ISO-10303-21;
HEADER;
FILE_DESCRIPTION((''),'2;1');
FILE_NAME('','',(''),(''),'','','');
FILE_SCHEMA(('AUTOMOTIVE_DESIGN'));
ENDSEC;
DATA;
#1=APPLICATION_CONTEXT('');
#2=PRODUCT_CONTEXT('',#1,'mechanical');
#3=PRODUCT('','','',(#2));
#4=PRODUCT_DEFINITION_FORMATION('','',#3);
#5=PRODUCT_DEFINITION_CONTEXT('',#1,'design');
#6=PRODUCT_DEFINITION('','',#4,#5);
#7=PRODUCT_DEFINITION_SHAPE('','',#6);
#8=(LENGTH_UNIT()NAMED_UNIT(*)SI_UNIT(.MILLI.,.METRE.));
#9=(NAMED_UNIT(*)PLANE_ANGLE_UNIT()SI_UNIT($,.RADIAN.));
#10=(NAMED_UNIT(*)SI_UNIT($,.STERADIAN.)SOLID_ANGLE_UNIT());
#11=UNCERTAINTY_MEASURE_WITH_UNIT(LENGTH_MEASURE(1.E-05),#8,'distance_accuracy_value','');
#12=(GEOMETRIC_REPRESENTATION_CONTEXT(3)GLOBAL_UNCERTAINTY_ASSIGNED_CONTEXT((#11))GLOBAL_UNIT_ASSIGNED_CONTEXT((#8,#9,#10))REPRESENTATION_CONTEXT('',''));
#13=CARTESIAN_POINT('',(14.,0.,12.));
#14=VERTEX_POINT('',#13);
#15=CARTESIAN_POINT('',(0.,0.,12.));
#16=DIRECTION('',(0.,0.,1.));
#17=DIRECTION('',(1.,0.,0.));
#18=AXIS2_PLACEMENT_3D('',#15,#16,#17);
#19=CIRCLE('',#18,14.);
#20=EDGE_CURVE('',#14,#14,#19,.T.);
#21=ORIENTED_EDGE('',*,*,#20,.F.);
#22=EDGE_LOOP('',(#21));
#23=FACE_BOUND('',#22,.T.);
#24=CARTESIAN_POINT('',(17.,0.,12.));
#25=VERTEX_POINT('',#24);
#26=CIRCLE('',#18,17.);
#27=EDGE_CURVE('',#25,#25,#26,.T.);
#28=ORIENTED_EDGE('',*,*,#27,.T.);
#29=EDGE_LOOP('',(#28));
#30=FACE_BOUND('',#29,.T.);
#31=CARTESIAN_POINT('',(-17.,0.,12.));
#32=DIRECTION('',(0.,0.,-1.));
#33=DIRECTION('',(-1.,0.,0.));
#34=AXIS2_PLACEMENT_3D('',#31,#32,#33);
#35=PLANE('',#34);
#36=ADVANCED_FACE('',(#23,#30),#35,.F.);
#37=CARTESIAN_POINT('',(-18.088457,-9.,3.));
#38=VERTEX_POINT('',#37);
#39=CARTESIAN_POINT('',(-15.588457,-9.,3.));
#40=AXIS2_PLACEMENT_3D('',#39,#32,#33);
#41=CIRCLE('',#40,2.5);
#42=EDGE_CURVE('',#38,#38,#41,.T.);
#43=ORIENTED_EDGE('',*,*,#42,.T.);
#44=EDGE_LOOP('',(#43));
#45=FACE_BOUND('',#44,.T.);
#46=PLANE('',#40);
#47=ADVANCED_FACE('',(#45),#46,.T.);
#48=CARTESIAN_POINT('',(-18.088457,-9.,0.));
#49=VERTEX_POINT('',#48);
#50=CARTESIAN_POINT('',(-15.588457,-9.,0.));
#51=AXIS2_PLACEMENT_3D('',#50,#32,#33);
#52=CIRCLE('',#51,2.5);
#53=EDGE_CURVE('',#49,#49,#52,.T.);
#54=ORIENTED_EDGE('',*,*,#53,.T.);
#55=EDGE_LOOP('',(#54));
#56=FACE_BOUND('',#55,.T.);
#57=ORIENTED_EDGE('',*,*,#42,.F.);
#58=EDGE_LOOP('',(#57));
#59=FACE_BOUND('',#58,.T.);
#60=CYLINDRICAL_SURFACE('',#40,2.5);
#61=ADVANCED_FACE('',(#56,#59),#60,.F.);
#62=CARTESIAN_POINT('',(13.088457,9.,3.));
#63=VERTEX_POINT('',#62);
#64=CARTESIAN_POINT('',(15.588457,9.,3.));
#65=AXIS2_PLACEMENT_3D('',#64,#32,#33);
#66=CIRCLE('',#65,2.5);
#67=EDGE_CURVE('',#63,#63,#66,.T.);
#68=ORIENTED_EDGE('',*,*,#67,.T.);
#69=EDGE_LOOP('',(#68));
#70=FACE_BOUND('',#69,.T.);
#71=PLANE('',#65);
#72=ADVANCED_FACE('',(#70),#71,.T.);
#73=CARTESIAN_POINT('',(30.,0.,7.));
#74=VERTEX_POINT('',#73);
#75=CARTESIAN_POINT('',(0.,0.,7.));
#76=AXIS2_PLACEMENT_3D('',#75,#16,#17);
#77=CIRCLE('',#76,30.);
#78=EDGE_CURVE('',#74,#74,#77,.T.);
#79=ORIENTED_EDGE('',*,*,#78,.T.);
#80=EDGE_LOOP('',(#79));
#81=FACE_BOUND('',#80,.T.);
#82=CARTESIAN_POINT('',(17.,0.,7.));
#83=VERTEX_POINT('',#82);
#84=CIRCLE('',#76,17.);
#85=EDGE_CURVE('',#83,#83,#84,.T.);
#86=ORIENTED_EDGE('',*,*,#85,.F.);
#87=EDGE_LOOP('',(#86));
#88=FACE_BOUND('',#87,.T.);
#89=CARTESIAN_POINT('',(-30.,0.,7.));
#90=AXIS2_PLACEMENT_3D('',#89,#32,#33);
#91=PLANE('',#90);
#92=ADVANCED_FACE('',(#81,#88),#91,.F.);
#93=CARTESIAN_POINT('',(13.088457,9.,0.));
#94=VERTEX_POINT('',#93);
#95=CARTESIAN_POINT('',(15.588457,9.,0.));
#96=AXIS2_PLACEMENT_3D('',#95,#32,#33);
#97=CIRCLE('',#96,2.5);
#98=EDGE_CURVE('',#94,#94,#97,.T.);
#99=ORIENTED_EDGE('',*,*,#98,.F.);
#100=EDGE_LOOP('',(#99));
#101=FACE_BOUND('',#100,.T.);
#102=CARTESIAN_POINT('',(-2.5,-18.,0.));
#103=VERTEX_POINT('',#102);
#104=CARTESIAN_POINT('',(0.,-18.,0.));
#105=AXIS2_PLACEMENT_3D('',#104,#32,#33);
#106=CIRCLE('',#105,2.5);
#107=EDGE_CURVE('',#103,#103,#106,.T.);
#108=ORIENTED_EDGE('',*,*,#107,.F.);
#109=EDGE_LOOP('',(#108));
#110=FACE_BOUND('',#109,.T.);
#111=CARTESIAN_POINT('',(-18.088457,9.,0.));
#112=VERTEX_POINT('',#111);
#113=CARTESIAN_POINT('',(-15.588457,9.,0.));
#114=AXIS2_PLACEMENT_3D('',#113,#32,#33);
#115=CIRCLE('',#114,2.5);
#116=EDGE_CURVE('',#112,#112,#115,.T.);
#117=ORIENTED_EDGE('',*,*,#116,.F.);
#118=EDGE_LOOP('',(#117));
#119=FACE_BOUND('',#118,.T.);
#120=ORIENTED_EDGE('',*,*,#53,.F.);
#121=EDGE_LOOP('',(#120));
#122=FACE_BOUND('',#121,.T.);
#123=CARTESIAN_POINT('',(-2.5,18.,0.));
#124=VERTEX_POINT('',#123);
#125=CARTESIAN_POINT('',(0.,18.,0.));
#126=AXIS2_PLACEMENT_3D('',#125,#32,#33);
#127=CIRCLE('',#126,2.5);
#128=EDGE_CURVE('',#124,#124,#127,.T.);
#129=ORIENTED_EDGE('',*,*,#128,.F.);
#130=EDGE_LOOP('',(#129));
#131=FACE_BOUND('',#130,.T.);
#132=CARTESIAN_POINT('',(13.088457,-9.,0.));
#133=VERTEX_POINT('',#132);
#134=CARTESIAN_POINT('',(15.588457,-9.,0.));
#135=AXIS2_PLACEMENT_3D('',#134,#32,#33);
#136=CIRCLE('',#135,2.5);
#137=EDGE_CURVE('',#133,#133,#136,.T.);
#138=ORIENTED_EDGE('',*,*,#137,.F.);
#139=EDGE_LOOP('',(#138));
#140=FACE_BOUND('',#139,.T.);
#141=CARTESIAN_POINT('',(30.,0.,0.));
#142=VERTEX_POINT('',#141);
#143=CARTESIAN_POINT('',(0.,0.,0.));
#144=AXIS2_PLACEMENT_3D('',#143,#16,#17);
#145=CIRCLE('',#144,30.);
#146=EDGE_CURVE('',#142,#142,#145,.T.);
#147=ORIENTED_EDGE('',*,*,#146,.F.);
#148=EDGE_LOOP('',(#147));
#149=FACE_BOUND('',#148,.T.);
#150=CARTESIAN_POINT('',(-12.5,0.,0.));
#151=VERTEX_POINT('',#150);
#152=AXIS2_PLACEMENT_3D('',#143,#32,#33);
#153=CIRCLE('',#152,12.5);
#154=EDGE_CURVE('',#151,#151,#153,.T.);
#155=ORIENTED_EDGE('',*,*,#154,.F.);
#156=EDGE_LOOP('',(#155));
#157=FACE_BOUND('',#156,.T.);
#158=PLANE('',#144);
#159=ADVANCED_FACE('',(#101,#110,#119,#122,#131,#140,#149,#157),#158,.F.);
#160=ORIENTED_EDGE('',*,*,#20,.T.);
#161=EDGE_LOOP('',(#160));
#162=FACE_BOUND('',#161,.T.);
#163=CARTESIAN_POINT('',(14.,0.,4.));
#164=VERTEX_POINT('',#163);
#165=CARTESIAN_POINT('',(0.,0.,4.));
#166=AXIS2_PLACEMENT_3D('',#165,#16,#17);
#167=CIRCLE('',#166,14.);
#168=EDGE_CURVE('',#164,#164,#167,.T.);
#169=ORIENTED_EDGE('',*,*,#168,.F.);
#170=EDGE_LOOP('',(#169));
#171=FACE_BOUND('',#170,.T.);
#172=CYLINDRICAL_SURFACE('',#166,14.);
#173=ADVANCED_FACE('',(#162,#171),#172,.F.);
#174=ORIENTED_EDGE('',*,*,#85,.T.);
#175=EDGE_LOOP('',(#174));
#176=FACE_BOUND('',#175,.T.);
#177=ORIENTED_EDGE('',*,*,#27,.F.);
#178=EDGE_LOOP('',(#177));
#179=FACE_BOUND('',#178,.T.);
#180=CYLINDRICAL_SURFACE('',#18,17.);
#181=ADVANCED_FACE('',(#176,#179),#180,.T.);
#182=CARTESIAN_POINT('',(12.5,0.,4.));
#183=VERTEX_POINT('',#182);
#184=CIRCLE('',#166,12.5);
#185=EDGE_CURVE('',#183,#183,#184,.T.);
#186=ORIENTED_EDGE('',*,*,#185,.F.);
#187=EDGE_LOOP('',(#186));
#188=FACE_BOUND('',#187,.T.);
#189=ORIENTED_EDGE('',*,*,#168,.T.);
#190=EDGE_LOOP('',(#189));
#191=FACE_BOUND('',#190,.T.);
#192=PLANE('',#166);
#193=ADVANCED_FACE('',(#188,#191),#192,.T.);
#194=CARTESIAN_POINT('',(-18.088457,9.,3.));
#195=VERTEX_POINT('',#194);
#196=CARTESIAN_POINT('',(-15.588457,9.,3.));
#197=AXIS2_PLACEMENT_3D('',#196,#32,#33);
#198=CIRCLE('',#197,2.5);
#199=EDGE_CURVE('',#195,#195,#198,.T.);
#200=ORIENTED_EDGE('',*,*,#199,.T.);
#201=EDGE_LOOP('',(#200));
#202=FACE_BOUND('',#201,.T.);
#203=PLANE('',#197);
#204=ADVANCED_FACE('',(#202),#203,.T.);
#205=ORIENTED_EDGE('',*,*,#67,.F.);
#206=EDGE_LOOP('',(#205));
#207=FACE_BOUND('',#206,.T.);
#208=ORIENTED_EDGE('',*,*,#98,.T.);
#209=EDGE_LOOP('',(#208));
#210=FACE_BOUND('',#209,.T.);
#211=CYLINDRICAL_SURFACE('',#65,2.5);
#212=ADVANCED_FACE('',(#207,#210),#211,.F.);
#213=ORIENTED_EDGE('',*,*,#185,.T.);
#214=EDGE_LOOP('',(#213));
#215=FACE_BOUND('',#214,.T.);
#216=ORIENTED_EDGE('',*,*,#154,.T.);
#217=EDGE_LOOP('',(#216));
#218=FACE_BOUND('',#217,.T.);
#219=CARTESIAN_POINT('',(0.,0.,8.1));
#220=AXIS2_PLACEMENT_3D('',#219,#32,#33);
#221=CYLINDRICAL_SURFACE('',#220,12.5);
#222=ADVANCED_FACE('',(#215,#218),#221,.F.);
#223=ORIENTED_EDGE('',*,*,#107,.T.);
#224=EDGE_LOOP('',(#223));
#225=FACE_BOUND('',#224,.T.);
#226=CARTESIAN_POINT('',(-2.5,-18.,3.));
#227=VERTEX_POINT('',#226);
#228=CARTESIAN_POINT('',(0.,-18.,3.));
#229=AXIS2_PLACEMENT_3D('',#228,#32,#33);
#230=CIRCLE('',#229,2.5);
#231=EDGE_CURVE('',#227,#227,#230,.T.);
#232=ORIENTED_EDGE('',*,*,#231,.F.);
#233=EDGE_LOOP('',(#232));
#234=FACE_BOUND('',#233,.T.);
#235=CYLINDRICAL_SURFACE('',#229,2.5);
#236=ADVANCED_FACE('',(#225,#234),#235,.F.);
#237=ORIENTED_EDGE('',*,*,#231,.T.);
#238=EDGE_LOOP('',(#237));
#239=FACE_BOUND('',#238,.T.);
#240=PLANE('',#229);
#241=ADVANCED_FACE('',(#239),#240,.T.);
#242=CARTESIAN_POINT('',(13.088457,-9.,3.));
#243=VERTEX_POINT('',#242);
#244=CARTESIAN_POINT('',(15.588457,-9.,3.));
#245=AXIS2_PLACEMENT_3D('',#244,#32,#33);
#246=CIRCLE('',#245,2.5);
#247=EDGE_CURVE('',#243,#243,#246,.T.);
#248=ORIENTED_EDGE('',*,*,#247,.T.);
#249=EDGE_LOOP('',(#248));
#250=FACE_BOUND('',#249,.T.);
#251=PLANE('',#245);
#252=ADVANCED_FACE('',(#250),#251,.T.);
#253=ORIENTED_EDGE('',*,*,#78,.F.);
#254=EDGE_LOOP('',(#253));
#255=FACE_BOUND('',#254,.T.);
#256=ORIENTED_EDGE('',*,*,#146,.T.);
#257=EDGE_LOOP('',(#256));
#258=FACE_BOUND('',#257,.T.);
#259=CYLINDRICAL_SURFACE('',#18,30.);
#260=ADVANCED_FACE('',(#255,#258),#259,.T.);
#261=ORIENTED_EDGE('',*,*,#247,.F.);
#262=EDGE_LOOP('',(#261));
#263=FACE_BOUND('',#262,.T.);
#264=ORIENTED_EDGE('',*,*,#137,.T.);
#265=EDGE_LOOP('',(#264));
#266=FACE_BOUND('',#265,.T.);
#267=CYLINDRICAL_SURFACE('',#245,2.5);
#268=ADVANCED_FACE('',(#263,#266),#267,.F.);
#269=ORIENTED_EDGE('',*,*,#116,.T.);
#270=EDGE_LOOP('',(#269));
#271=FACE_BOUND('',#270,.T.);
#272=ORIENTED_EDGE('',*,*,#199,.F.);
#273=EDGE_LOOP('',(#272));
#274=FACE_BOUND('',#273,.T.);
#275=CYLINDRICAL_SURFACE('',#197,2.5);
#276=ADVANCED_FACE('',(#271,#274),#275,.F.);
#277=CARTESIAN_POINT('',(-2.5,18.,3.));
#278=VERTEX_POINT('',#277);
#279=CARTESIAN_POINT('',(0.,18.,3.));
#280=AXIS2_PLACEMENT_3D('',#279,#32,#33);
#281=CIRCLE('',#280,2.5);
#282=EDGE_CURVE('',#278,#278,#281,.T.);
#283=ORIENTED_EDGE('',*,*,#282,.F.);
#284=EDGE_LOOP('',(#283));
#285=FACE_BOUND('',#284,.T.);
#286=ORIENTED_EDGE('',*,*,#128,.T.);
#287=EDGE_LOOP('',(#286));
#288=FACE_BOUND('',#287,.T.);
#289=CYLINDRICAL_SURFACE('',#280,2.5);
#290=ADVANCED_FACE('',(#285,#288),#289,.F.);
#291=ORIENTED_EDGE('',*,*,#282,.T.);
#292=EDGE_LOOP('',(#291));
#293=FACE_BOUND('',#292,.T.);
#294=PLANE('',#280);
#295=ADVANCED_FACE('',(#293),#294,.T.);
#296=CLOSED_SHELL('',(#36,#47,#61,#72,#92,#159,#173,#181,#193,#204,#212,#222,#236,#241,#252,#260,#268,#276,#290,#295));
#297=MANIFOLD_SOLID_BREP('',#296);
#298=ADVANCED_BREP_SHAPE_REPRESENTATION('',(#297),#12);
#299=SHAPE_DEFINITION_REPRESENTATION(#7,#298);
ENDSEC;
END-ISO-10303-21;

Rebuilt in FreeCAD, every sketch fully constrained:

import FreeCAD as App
import Part
import Sketcher

V = App.Vector
Q = App.Units.Quantity

doc = App.newDocument("Part")
body = doc.addObject("PartDesign::Body", "Body")

sketch1 = body.newObject("Sketcher::SketchObject", "Sketch")
sketch1.AttachmentSupport = (doc.getObject("XZ_Plane"), [""])
sketch1.MapMode = "FlatFace"
sketch1.addGeometry(Part.LineSegment(V(0, 0, 0), V(-30, 0, 0)), False)
sketch1.addGeometry(Part.LineSegment(V(-30, 0, 0), V(-30, 7, 0)), False)
sketch1.addGeometry(Part.LineSegment(V(-30, 7, 0), V(-17, 7, 0)), False)
sketch1.addGeometry(Part.LineSegment(V(-17, 7, 0), V(-17, 12, 0)), False)
sketch1.addGeometry(Part.LineSegment(V(-17, 12, 0), V(0, 12, 0)), False)
sketch1.addGeometry(Part.LineSegment(V(0, 12, 0), V(0, 0, 0)), False)
sketch1.addConstraint(Sketcher.Constraint("Coincident", 0, 2, 1, 1))
sketch1.addConstraint(Sketcher.Constraint("Coincident", 1, 2, 2, 1))
sketch1.addConstraint(Sketcher.Constraint("Coincident", 2, 2, 3, 1))
sketch1.addConstraint(Sketcher.Constraint("Coincident", 3, 2, 4, 1))
sketch1.addConstraint(Sketcher.Constraint("Coincident", 4, 2, 5, 1))
sketch1.addConstraint(Sketcher.Constraint("Coincident", 5, 2, 0, 1))
sketch1.addConstraint(Sketcher.Constraint("Horizontal", 0))
sketch1.addConstraint(Sketcher.Constraint("Vertical", 1))
sketch1.addConstraint(Sketcher.Constraint("Horizontal", 2))
sketch1.addConstraint(Sketcher.Constraint("Vertical", 3))
sketch1.addConstraint(Sketcher.Constraint("Horizontal", 4))
sketch1.addConstraint(Sketcher.Constraint("Vertical", 5))
sketch1.addConstraint(Sketcher.Constraint("Coincident", 5, 2, -1, 1))
sketch1.addConstraint(Sketcher.Constraint("DistanceX", 0, 2, 0, 1, Q("30 mm")))
sketch1.addConstraint(Sketcher.Constraint("DistanceX", 2, 1, 2, 2, Q("13 mm")))
sketch1.addConstraint(Sketcher.Constraint("DistanceY", 1, 1, 1, 2, Q("7 mm")))
sketch1.addConstraint(Sketcher.Constraint("DistanceY", 3, 1, 3, 2, Q("5 mm")))
revolution = body.newObject("PartDesign::Revolution", "Revolution")
revolution.Profile = sketch1
revolution.ReferenceAxis = (sketch1, ["V_Axis"])
revolution.Angle = 360

sketch2 = body.newObject("Sketcher::SketchObject", "Sketch001")
sketch2.AttachmentSupport = (doc.getObject("XY_Plane"), [""])
sketch2.MapMode = "FlatFace"
sketch2.AttachmentOffset = App.Placement(V(0, 0, 12), App.Rotation())
sketch2.addGeometry(Part.Circle(V(0, 0, 0), V(0, 0, 1), 14), False)
sketch2.addConstraint(Sketcher.Constraint("Coincident", 0, 3, -1, 1))
sketch2.addConstraint(Sketcher.Constraint("Diameter", 0, Q("28 mm")))
pocket1 = body.newObject("PartDesign::Pocket", "Pocket")
pocket1.Profile = sketch2
pocket1.Length = 8

sketch3 = body.newObject("Sketcher::SketchObject", "Sketch002")
sketch3.AttachmentSupport = (doc.getObject("XY_Plane"), [""])
sketch3.MapMode = "FlatFace"
sketch3.addGeometry(Part.Circle(V(0, 0, 0), V(0, 0, 1), 12), False)
sketch3.addConstraint(Sketcher.Constraint("Coincident", 0, 3, -1, 1))
sketch3.addConstraint(Sketcher.Constraint("Diameter", 0, Q("25 mm")))
pocket2 = body.newObject("PartDesign::Pocket", "Pocket001")
pocket2.Profile = sketch3
pocket2.Length = 8.1
pocket2.Reversed = True

sketch4 = body.newObject("Sketcher::SketchObject", "Sketch003")
sketch4.AttachmentSupport = (doc.getObject("XY_Plane"), [""])
sketch4.MapMode = "FlatFace"
sketch4.addGeometry(Part.Circle(V(0, 18, 0), V(0, 0, 1), 2.5), False)
sketch4.addGeometry(Part.Circle(V(-15.6, 9, 0), V(0, 0, 1), 2.5), False)
sketch4.addGeometry(Part.Circle(V(-15.6, -9, 0), V(0, 0, 1), 2.5), False)
sketch4.addGeometry(Part.Circle(V(0, -18, 0), V(0, 0, 1), 2.5), False)
sketch4.addGeometry(Part.Circle(V(15.6, -9, 0), V(0, 0, 1), 2.5), False)
sketch4.addGeometry(Part.Circle(V(15.6, 9, 0), V(0, 0, 1), 2.5), False)
sketch4.addConstraint(Sketcher.Constraint("Equal", 0, 1))
sketch4.addConstraint(Sketcher.Constraint("Equal", 1, 2))
sketch4.addConstraint(Sketcher.Constraint("Equal", 2, 3))
sketch4.addConstraint(Sketcher.Constraint("Equal", 3, 4))
sketch4.addConstraint(Sketcher.Constraint("Equal", 4, 5))
sketch4.addConstraint(Sketcher.Constraint("Symmetric", 0, 3, 3, 3, -1, 1))
sketch4.addConstraint(Sketcher.Constraint("Symmetric", 1, 3, 4, 3, -1, 1))
sketch4.addConstraint(Sketcher.Constraint("Symmetric", 2, 3, 5, 3, -1, 1))
sketch4.addConstraint(Sketcher.Constraint("Symmetric", 2, 3, 4, 3, -2))
sketch4.addConstraint(Sketcher.Constraint("PointOnObject", 0, 3, -2))
sketch4.addConstraint(Sketcher.Constraint("Diameter", 0, Q("5 mm")))
sketch4.addConstraint(Sketcher.Constraint("DistanceY", -1, 1, 0, 3, Q("18 mm")))
sketch4.addConstraint(Sketcher.Constraint("DistanceY", -1, 1, 1, 3, Q("9 mm")))
sketch4.addConstraint(Sketcher.Constraint("DistanceX", 1, 3, -1, 1, Q("15.588457 mm")))
pocket3 = body.newObject("PartDesign::Pocket", "Pocket002")
pocket3.Profile = sketch4
pocket3.Length = 3
pocket3.Reversed = True

doc.recompute()
